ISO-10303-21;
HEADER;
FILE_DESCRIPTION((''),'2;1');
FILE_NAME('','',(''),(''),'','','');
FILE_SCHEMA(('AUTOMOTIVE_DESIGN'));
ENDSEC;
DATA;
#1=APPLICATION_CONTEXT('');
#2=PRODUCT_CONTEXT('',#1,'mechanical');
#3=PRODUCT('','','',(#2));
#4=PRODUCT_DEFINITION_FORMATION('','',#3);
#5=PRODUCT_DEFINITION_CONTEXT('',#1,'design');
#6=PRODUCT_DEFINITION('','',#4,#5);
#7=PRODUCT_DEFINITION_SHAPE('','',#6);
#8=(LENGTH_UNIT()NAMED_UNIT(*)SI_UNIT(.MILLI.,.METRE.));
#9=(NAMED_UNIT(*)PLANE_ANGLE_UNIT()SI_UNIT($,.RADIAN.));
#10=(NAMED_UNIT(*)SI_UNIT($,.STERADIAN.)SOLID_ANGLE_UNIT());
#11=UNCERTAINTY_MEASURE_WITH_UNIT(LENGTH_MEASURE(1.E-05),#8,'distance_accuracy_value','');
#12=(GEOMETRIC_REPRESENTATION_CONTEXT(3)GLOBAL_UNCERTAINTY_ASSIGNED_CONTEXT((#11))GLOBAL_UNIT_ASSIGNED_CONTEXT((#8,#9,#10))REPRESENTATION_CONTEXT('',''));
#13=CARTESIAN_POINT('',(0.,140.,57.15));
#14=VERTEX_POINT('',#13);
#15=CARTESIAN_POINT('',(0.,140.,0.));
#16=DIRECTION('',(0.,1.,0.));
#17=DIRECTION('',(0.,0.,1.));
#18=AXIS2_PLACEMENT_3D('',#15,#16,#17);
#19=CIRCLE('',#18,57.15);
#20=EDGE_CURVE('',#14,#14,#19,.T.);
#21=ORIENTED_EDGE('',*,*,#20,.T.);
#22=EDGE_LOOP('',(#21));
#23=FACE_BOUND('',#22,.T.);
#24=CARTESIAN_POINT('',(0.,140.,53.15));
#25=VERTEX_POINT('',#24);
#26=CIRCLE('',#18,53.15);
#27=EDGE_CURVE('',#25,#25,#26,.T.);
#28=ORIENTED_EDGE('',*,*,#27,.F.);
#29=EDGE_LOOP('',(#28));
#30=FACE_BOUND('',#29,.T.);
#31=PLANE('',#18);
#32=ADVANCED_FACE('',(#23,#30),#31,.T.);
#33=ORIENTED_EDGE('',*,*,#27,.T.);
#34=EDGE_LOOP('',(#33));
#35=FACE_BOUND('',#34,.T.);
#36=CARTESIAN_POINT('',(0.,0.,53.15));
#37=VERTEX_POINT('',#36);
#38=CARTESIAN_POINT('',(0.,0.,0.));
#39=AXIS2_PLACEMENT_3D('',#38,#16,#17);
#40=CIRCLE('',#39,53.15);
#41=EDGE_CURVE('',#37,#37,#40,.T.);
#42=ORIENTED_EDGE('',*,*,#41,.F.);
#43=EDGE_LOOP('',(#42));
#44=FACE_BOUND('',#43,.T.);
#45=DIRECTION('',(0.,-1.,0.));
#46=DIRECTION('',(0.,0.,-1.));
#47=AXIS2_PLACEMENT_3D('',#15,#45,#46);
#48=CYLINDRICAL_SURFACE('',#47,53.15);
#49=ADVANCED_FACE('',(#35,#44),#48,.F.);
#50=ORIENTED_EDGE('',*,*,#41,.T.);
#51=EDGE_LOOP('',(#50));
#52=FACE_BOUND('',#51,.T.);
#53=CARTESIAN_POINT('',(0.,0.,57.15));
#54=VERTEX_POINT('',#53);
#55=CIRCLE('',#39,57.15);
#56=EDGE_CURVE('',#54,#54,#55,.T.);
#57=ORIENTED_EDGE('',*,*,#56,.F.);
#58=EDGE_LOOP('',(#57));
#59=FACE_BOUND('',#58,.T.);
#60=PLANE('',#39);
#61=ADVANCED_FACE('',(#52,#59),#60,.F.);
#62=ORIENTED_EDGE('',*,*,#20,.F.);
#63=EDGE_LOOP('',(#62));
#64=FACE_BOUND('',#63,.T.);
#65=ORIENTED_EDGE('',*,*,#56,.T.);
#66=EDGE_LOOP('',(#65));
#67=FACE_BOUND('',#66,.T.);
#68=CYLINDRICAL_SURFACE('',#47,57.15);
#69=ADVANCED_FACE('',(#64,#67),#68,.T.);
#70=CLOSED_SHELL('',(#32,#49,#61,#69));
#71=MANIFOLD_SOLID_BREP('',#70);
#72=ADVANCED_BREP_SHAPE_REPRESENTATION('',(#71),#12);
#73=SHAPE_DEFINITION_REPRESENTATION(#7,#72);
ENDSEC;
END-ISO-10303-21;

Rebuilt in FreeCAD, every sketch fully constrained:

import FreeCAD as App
import Part
import Sketcher
from FreeCAD import Vector

doc = App.newDocument("Part")
body = doc.addObject("PartDesign::Body", "Body")

sketch1 = doc.addObject("Sketcher::SketchObject", "Sketch")
body.addObject(sketch1)
sketch1.AttachmentSupport = (doc.XZ_Plane, [""])
sketch1.MapMode = "FlatFace"
sketch1.addGeometry(Part.Circle(Vector(0, 0, 0), Vector(0, 0, 1), 57.15), False)
sketch1.addGeometry(Part.Circle(Vector(0, 0, 0), Vector(0, 0, 1), 53.15), False)
sketch1.addConstraint(Sketcher.Constraint("Coincident", 0, 3, -1, 1))
sketch1.addConstraint(Sketcher.Constraint("Coincident", 1, 3, -1, 1))
sketch1.addConstraint(Sketcher.Constraint("Diameter", 0, 114.3))
sketch1.addConstraint(Sketcher.Constraint("Diameter", 1, 106.3))
pad1 = doc.addObject("PartDesign::Pad", "Pad")
body.addObject(pad1)
pad1.Profile = sketch1
pad1.Length = 140
pad1.Reversed = True

doc.recompute()
